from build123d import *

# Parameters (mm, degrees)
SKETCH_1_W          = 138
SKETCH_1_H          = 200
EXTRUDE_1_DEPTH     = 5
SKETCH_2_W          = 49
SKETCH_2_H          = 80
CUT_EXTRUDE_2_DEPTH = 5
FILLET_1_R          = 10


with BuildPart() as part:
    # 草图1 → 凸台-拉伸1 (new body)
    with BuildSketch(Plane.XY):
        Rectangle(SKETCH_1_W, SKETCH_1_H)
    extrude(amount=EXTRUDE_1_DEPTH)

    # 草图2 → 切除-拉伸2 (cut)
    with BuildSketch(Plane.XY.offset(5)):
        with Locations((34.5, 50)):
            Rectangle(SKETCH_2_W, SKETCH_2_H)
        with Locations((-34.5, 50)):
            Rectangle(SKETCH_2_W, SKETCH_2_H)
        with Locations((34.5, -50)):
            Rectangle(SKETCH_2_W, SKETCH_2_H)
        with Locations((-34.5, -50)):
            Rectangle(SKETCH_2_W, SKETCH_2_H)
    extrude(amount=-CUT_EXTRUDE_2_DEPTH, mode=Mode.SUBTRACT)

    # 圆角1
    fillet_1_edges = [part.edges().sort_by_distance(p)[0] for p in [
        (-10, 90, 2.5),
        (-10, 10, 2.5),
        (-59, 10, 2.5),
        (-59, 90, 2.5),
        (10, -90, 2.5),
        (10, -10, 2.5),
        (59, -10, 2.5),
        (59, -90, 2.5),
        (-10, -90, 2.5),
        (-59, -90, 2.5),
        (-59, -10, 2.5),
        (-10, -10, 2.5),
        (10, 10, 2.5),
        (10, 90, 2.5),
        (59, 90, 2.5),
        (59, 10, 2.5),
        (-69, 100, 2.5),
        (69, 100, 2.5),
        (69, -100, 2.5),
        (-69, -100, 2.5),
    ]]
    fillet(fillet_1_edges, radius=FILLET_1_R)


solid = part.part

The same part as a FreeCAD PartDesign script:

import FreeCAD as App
import Part
import Sketcher
from FreeCAD import Vector
Q = App.Units.Quantity


def edges_at(feature, points):
    """Names of the edges that pass closest to the given points."""
    edges = feature.Shape.Edges
    near = lambda p: min(range(len(edges)), key=lambda i: edges[i].distToShape(Part.Vertex(*p))[0])
    return sorted({f"Edge{near(p) + 1}" for p in points})


def add_polygon(sketch, points):
    """Adds a closed chain of lines whose ends are joined by coincident constraints."""
    first, n = sketch.GeometryCount, len(points)
    for a, b in zip(points, points[1:] + points[:1]):
        sketch.addGeometry(Part.LineSegment(App.Vector(*a, 0), App.Vector(*b, 0)), False)
    for i in range(n):
        sketch.addConstraint(Sketcher.Constraint("Coincident", first + i, 2, first + (i + 1) % n, 1))

doc = App.newDocument("Part")
body = doc.addObject("PartDesign::Body", "Body")

sketch1 = doc.addObject("Sketcher::SketchObject", "Sketch")
body.addObject(sketch1)
sketch1.AttachmentSupport = (doc.XY_Plane, [""])
sketch1.MapMode = "FlatFace"
add_polygon(sketch1, [(-69, 100), (-69, -100), (69, -100), (69, 100)])
sketch1.addConstraint([
    Sketcher.Constraint("Vertical", 0),
    Sketcher.Constraint("Horizontal", 1),
    Sketcher.Constraint("Vertical", 2),
    Sketcher.Constraint("Horizontal", 3),
    Sketcher.Constraint("Symmetric", 0, 2, 2, 2, -1, 1),
    Sketcher.Constraint("DistanceX", 1, 1, 1, 2, Q("138 mm")),
    Sketcher.Constraint("DistanceY", 0, 2, 0, 1, Q("200 mm")),
])
pad1 = doc.addObject("PartDesign::Pad", "Pad")
body.addObject(pad1)
pad1.Profile = sketch1
pad1.Length = 5

sketch2 = doc.addObject("Sketcher::SketchObject", "Sketch001")
body.addObject(sketch2)
sketch2.AttachmentSupport = (doc.XY_Plane, [""])
sketch2.MapMode = "FlatFace"
sketch2.AttachmentOffset = App.Placement(Vector(0, 0, 5), App.Rotation())
add_polygon(sketch2, [(10, 90), (10, 10), (59, 10), (59, 90)])
add_polygon(sketch2, [(-59, 90), (-59, 10), (-10, 10), (-10, 90)])
add_polygon(sketch2, [(10, -10), (10, -90), (59, -90), (59, -10)])
add_polygon(sketch2, [(-59, -10), (-59, -90), (-10, -90), (-10, -10)])
sketch2.addConstraint([
    Sketcher.Constraint("Vertical", 0),
    Sketcher.Constraint("Horizontal", 1),
    Sketcher.Constraint("Vertical", 2),
    Sketcher.Constraint("Horizontal", 3),
    Sketcher.Constraint("Vertical", 4),
    Sketcher.Constraint("Horizontal", 5),
    Sketcher.Constraint("Vertical", 6),
    Sketcher.Constraint("Horizontal", 7),
    Sketcher.Constraint("Vertical", 8),
    Sketcher.Constraint("Horizontal", 9),
    Sketcher.Constraint("Vertical", 10),
    Sketcher.Constraint("Horizontal", 11),
    Sketcher.Constraint("Vertical", 12),
    Sketcher.Constraint("Horizontal", 13),
    Sketcher.Constraint("Vertical", 14),
    Sketcher.Constraint("Horizontal", 15),
    Sketcher.Constraint("Symmetric", 6, 2, 8, 2, -1, 1),
    Sketcher.Constraint("Symmetric", 4, 2, 10, 2, -1, 1),
    Sketcher.Constraint("Symmetric", 2, 2, 12, 2, -1, 1),
    Sketcher.Constraint("Symmetric", 0, 2, 14, 2, -1, 1),
    Sketcher.Constraint("Symmetric", 1, 2, 4, 2, -2),
    Sketcher.Constraint("Symmetric", 3, 2, 6, 2, -2),
    Sketcher.Constraint("DistanceX", 1, 1, 1, 2, Q("49 mm")),
    Sketcher.Constraint("DistanceY", 0, 2, 0, 1, Q("80 mm")),
    Sketcher.Constraint("DistanceX", -1, 1, 0, 2, Q("10 mm")),
    Sketcher.Constraint("DistanceY", -1, 1, 0, 2, Q("10 mm")),
])
pocket1 = doc.addObject("PartDesign::Pocket", "Pocket")
body.addObject(pocket1)
pocket1.Profile = sketch2
pocket1.Length = 5
doc.recompute()

fillet = doc.addObject("PartDesign::Fillet", "Fillet")
body.addObject(fillet)
fillet.Base = (pocket1, edges_at(pocket1, [
    (-10, 90, 2.5),
    (-10, 10, 2.5),
    (-59, 10, 2.5),
    (-59, 90, 2.5),
    (10, -90, 2.5),
    (10, -10, 2.5),
    (59, -10, 2.5),
    (59, -90, 2.5),
    (-10, -90, 2.5),
    (-59, -90, 2.5),
    (-59, -10, 2.5),
    (-10, -10, 2.5),
    (10, 10, 2.5),
    (10, 90, 2.5),
    (59, 90, 2.5),
    (59, 10, 2.5),
    (-69, 100, 2.5),
    (69, 100, 2.5),
    (69, -100, 2.5),
    (-69, -100, 2.5),
]))
fillet.Radius = 10

doc.recompute()
